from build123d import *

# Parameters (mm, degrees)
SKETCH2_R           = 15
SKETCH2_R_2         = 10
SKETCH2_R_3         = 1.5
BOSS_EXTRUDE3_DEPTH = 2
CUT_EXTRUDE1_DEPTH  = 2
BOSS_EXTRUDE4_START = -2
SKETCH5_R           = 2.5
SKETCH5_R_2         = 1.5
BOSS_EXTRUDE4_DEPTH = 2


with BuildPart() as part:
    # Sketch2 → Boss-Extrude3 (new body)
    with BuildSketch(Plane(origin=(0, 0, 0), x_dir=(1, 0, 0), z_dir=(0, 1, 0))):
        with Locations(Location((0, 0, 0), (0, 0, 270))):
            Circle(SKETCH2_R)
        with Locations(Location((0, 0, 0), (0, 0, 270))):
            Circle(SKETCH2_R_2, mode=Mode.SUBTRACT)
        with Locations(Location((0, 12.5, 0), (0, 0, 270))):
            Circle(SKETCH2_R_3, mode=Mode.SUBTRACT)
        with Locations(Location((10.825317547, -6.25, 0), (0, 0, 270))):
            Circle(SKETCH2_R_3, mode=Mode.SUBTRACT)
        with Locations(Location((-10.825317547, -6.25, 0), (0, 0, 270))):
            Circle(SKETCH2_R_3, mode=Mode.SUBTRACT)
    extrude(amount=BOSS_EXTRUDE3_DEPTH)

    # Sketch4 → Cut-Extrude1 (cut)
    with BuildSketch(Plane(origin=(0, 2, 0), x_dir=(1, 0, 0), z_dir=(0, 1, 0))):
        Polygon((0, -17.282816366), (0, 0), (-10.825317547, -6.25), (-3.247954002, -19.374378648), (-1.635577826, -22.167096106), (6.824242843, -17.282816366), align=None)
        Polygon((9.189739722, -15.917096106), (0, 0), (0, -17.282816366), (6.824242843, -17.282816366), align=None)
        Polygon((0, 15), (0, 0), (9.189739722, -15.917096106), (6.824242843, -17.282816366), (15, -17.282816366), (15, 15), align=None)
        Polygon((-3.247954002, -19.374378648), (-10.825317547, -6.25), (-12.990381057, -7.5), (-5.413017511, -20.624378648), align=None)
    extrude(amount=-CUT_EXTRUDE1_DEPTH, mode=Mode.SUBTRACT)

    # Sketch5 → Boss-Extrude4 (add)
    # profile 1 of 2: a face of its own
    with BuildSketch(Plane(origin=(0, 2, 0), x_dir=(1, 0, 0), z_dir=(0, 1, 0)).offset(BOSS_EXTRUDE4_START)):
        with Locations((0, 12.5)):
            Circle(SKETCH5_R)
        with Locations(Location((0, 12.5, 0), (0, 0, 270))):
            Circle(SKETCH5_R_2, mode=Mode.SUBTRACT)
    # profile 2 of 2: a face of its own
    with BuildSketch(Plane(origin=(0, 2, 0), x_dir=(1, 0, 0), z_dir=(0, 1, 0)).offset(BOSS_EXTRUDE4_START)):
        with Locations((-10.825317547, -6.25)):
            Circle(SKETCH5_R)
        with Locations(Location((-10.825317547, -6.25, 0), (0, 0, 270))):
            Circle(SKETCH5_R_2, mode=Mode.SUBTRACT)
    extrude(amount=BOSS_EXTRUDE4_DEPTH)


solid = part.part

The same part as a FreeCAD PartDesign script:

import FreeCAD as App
import Part
import Sketcher

V = App.Vector
Q = App.Units.Quantity


def add_polygon(sketch, points):
    """Adds a closed chain of lines whose ends are joined by coincident constraints."""
    first, n = sketch.GeometryCount, len(points)
    for a, b in zip(points, points[1:] + points[:1]):
        sketch.addGeometry(Part.LineSegment(App.Vector(*a, 0), App.Vector(*b, 0)), False)
    for i in range(n):
        sketch.addConstraint(Sketcher.Constraint("Coincident", first + i, 2, first + (i + 1) % n, 1))

doc = App.newDocument("Part")
body = doc.addObject("PartDesign::Body", "Body")

sketch1 = body.newObject("Sketcher::SketchObject", "Sketch")
sketch1.AttachmentSupport = (doc.getObject("XZ_Plane"), [""])
sketch1.MapMode = "FlatFace"
sketch1.addGeometry([
    Part.Circle(V(0, 0, 0), V(0, 0, 1), 15),
    Part.Circle(V(0, -12.5, 0), V(0, 0, 1), 1.5),
    Part.Circle(V(-10.825318, 6.25, 0), V(0, 0, 1), 1.5),
    Part.Circle(V(0, 0, 0), V(0, 0, 1), 10),
    Part.Circle(V(10.825318, 6.25, 0), V(0, 0, 1), 1.5),
], False)
sketch1.addConstraint([
    Sketcher.Constraint("Coincident", 0, 3, -1, 1),
    Sketcher.Constraint("Coincident", 3, 3, -1, 1),
    Sketcher.Constraint("Equal", 1, 2),
    Sketcher.Constraint("Equal", 2, 4),
    Sketcher.Constraint("Symmetric", 2, 3, 4, 3, -2),
    Sketcher.Constraint("PointOnObject", 1, 3, -2),
    Sketcher.Constraint("Diameter", 0, 30.0),
    Sketcher.Constraint("Diameter", 1, 3.0),
    Sketcher.Constraint("Diameter", 3, 20.0),
    Sketcher.Constraint("DistanceY", 1, 3, -1, 1, 12.5),
    Sketcher.Constraint("DistanceY", -1, 1, 2, 3, 6.25),
    Sketcher.Constraint("DistanceX", 2, 3, -1, 1, 10.825318),
])
pad1 = body.newObject("PartDesign::Pad", "Pad")
pad1.Profile = sketch1
pad1.Length = 2
pad1.Reversed = True

sketch2 = body.newObject("Sketcher::SketchObject", "Sketch001")
sketch2.AttachmentSupport = (doc.getObject("XZ_Plane"), [""])
sketch2.MapMode = "FlatFace"
sketch2.AttachmentOffset = App.Placement(V(0, 0, -2), App.Rotation())
add_polygon(sketch2, [(0, 0), (-10.825318, 6.25), (-12.990381, 7.5), (-5.413018, 20.624379), (-3.247954, 19.374379), (-1.635578, 22.167096), (6.824243, 17.282816), (15, 17.282816), (15, -15), (0, -15)])
sketch2.addConstraint([
    Sketcher.Constraint("Horizontal", 6),
    Sketcher.Constraint("Vertical", 7),
    Sketcher.Constraint("Horizontal", 8),
    Sketcher.Constraint("Vertical", 9),
    Sketcher.Constraint("Coincident", 9, 2, -1, 1),
    Sketcher.Constraint("Parallel", 0, 1),
    Sketcher.Constraint("Perpendicular", 1, 2),
    Sketcher.Constraint("Perpendicular", 2, 3),
    Sketcher.Constraint("Perpendicular", 3, 4),
    Sketcher.Constraint("Perpendicular", 4, 5),
    Sketcher.Constraint("Equal", 8, 9),
    Sketcher.Constraint("Equal", 1, 3),
    Sketcher.Constraint("DistanceX", 8, 2, 8, 1, 15.0),
    Sketcher.Constraint("Angle", 0, Q("150 deg")),
    Sketcher.Constraint("Distance", 0, 12.5),
    Sketcher.Constraint("Distance", 1, 2.5),
    Sketcher.Constraint("DistanceX", 0, 2, 2, 2, 5.4123),
    Sketcher.Constraint("Distance", 5, 9.768559),
    Sketcher.Constraint("DistanceX", 6, 1, 6, 2, 8.175757),
])
pocket1 = body.newObject("PartDesign::Pocket", "Pocket")
pocket1.Profile = sketch2
pocket1.Length = 2
pocket1.Reversed = True

sketch3 = body.newObject("Sketcher::SketchObject", "Sketch002")
sketch3.AttachmentSupport = (doc.getObject("XZ_Plane"), [""])
sketch3.MapMode = "FlatFace"
sketch3.addGeometry([
    Part.Circle(V(0, -12.5, 0), V(0, 0, 1), 2.5),
    Part.Circle(V(0, -12.5, 0), V(0, 0, 1), 1.5),
    Part.Circle(V(-10.825318, 6.25, 0), V(0, 0, 1), 2.5),
    Part.Circle(V(-10.825318, 6.25, 0), V(0, 0, 1), 1.5),
], False)
sketch3.addConstraint([
    Sketcher.Constraint("Coincident", 1, 3, 0, 3),
    Sketcher.Constraint("Coincident", 3, 3, 2, 3),
    Sketcher.Constraint("Equal", 0, 2),
    Sketcher.Constraint("Equal", 1, 3),
    Sketcher.Constraint("PointOnObject", 0, 3, -2),
    Sketcher.Constraint("Diameter", 0, 5.0),
    Sketcher.Constraint("Diameter", 1, 3.0),
    Sketcher.Constraint("DistanceY", 0, 3, -1, 1, 12.5),
    Sketcher.Constraint("DistanceY", -1, 1, 2, 3, 6.25),
    Sketcher.Constraint("DistanceX", 2, 3, -1, 1, 10.825318),
])
pad2 = body.newObject("PartDesign::Pad", "Pad001")
pad2.Profile = sketch3
pad2.Length = 2
pad2.Reversed = True

doc.recompute()
